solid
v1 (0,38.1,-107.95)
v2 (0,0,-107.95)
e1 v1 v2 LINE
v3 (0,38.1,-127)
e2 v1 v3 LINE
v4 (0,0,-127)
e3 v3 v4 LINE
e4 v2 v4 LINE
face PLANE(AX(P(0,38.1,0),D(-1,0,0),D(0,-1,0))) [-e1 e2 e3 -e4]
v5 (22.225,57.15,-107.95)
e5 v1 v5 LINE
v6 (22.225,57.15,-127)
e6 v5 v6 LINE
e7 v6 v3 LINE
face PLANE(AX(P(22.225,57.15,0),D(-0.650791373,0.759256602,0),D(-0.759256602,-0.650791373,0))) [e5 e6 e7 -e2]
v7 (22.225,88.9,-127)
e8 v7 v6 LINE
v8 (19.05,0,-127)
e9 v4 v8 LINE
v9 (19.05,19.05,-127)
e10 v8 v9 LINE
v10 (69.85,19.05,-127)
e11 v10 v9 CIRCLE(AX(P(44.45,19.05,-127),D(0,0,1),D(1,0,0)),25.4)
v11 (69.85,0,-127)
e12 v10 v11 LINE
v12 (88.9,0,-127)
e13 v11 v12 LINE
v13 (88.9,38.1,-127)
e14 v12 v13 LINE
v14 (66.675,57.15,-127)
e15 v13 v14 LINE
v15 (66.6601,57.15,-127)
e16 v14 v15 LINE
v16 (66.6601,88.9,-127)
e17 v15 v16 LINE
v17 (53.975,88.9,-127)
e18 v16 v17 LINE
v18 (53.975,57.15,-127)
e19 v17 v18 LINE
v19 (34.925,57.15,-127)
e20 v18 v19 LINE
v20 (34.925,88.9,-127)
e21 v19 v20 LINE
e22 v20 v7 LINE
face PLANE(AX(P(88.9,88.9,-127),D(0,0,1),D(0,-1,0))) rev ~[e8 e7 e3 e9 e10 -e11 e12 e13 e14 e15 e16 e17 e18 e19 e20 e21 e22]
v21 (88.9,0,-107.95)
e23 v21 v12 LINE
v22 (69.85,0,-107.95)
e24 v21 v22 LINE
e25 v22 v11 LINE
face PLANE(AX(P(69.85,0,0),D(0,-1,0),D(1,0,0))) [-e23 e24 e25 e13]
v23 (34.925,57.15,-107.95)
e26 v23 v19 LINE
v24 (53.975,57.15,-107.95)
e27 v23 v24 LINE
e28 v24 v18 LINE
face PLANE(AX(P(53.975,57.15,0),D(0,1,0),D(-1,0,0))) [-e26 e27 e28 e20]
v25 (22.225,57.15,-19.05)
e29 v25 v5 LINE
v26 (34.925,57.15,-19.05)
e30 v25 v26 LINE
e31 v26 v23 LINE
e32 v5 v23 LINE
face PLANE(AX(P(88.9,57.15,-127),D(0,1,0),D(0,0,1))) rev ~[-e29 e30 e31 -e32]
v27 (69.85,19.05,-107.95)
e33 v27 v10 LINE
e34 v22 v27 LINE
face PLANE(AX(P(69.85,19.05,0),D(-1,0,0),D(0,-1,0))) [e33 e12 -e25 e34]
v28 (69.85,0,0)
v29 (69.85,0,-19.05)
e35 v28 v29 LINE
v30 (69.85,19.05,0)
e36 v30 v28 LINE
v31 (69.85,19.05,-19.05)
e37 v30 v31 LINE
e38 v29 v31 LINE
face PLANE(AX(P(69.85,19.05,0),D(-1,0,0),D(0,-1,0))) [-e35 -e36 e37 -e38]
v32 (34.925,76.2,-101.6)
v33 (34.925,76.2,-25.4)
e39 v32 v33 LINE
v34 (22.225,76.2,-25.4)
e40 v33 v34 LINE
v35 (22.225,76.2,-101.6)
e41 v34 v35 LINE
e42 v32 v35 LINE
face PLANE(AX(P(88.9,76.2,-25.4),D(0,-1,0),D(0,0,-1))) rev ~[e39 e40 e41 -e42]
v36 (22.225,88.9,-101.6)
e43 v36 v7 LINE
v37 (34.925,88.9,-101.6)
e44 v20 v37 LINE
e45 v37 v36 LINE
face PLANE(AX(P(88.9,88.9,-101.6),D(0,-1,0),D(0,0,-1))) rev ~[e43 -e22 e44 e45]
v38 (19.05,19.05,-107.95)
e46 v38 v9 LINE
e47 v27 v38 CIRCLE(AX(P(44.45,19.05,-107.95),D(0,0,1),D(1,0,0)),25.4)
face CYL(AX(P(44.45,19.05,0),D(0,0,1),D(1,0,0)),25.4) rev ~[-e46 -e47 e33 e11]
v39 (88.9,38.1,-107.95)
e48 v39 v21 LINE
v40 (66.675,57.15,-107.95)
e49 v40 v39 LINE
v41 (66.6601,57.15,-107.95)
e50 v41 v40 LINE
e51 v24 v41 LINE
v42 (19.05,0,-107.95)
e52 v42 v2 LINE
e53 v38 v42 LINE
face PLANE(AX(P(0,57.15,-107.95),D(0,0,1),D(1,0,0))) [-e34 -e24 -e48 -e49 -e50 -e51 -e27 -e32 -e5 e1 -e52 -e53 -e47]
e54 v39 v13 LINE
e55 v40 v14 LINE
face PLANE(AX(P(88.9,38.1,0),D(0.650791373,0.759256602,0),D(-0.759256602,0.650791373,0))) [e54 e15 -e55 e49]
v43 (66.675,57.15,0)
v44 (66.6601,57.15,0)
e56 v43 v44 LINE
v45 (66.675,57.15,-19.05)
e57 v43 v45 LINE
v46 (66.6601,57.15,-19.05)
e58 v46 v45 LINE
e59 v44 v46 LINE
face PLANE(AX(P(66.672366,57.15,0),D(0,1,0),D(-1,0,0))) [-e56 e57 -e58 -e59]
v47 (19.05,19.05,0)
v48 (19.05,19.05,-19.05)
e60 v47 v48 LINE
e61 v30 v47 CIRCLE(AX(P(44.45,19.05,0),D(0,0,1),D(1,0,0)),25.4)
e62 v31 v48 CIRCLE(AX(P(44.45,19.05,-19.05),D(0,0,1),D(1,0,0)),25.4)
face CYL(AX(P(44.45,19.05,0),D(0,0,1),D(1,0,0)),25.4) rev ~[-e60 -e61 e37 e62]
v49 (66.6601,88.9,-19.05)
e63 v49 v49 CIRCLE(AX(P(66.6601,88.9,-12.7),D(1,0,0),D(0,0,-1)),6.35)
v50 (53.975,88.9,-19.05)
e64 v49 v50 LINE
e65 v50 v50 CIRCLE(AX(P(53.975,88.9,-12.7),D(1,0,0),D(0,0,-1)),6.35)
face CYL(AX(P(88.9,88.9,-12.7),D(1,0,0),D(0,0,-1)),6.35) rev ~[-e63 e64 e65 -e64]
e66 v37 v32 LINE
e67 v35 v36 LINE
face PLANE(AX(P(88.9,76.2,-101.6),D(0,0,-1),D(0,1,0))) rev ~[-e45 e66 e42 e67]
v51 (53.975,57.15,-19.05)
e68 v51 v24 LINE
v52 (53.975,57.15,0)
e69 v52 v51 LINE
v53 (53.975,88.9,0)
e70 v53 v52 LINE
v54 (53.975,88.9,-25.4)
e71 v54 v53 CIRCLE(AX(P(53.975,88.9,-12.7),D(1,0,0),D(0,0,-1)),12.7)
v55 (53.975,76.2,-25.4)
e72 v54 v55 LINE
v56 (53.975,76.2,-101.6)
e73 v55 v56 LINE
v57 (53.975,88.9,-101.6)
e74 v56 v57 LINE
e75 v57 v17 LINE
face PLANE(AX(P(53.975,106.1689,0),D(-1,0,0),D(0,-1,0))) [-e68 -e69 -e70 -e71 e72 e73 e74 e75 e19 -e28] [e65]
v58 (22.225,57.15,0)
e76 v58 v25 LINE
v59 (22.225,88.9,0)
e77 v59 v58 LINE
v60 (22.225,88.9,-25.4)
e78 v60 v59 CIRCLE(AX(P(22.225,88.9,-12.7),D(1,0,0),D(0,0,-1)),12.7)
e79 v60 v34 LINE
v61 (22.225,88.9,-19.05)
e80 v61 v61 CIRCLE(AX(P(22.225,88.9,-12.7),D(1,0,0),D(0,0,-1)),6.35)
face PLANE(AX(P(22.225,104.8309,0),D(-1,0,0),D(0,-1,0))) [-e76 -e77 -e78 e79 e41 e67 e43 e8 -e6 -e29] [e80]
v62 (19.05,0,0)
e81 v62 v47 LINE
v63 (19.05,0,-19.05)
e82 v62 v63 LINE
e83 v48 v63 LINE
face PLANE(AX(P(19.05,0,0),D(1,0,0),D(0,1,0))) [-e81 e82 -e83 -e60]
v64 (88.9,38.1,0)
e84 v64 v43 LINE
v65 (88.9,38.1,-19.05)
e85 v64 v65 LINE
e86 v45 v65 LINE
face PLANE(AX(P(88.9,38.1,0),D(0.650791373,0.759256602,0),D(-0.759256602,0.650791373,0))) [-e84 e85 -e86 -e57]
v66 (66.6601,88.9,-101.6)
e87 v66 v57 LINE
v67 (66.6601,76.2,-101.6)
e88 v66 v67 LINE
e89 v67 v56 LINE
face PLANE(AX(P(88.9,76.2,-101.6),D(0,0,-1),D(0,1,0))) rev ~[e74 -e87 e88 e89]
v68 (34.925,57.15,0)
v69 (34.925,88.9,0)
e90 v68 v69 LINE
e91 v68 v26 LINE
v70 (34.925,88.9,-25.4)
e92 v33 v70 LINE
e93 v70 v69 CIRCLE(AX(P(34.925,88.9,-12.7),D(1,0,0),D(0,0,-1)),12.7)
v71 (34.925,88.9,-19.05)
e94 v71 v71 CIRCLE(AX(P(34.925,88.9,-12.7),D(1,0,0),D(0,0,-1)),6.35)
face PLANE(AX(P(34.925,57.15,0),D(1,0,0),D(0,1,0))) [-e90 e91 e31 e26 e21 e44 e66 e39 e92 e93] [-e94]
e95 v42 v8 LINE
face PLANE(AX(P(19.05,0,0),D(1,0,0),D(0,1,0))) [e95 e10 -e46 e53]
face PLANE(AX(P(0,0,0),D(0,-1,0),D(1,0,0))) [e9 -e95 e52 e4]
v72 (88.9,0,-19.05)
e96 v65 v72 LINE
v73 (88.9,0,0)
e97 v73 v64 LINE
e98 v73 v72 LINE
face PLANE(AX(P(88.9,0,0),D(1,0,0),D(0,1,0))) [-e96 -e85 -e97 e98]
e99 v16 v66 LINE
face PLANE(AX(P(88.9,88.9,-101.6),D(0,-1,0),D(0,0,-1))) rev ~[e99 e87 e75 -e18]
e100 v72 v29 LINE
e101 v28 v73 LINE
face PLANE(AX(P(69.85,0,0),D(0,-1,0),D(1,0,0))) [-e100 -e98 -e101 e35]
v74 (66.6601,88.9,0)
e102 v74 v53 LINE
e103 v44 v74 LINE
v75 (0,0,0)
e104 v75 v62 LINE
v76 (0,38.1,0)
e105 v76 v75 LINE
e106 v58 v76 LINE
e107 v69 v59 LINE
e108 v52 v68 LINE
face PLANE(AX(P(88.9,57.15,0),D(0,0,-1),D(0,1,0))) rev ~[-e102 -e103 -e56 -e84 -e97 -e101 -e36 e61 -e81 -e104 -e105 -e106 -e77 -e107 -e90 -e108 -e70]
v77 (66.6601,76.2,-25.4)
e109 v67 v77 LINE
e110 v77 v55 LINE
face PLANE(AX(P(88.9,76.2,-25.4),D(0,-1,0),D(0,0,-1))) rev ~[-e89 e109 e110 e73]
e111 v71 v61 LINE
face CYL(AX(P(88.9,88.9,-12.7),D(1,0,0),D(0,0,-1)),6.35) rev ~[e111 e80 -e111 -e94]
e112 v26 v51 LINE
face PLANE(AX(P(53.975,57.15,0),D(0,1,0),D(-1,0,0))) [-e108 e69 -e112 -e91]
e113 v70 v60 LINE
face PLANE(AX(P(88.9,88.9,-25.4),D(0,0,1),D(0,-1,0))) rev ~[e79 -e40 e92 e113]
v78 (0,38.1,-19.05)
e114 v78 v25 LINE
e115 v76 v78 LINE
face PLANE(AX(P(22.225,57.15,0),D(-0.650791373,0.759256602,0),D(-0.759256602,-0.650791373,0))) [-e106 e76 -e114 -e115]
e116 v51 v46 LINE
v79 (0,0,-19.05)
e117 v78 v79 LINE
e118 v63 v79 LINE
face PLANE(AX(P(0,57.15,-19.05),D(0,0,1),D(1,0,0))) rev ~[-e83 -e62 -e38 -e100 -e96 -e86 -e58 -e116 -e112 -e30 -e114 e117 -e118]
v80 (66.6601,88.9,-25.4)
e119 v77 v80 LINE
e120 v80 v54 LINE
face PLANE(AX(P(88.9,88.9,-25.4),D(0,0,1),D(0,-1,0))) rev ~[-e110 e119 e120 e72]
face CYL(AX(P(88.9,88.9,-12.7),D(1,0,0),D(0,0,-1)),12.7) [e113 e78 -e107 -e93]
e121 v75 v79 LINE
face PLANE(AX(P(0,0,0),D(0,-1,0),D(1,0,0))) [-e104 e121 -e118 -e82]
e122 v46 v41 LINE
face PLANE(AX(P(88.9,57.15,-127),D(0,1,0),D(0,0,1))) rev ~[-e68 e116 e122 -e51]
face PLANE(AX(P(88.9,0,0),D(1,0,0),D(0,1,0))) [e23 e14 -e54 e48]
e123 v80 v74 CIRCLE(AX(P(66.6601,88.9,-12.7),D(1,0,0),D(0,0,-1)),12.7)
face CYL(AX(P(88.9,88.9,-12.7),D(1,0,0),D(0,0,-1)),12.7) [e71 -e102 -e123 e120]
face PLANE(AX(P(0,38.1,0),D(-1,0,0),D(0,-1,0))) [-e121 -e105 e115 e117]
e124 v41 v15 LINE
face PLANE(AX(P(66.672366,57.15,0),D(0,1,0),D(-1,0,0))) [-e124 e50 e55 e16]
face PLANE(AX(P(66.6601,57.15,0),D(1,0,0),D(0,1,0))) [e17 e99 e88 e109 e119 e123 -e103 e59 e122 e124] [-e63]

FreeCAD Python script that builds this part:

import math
import FreeCAD as App
import Part
import Sketcher

V = App.Vector
Q = App.Units.Quantity

doc = App.newDocument("Part")
body = doc.addObject("PartDesign::Body", "Body")
body.AllowCompound = True

# Sketch on XY plane
sketch1 = body.newObject("Sketcher::SketchObject", "Sketch")
sketch1.AttachmentSupport = (doc.getObject("XY_Plane"), [""])
sketch1.MapMode = "FlatFace"
sketch1.addGeometry([
    Part.LineSegment(V(0, 38.1, 0), V(0, 0, 0)),  # 0
    Part.LineSegment(V(0, 0, 0), V(19.05, 0, 0)),  # 1
    Part.LineSegment(V(19.05, 0, 0), V(19.05, 19.05, 0)),  # 2
    Part.ArcOfCircle(Part.Circle(V(44.45, 19.05, 0), V(0, 0, 1), 25.4), math.radians(0), math.radians(180)),  # 3
    Part.LineSegment(V(69.85, 19.05, 0), V(69.85, 0, 0)),  # 4
    Part.LineSegment(V(69.85, 0, 0), V(88.9, 0, 0)),  # 5
    Part.LineSegment(V(88.9, 0, 0), V(88.9, 38.1, 0)),  # 6
    Part.LineSegment(V(88.9, 38.1, 0), V(66.675, 57.15, 0)),  # 7
    Part.LineSegment(V(66.675, 57.15, 0), V(22.225, 57.15, 0)),  # 8
    Part.LineSegment(V(22.225, 57.15, 0), V(0, 38.1, 0)),  # 9
], False)
sketch1.addConstraint([
    Sketcher.Constraint("Coincident", 0, 2, 1, 1),
    Sketcher.Constraint("Coincident", 1, 2, 2, 1),
    Sketcher.Constraint("Tangent", 2, 2, 3, 2),
    Sketcher.Constraint("Tangent", 3, 1, 4, 1),
    Sketcher.Constraint("Coincident", 4, 2, 5, 1),
    Sketcher.Constraint("Coincident", 5, 2, 6, 1),
    Sketcher.Constraint("Coincident", 6, 2, 7, 1),
    Sketcher.Constraint("Coincident", 7, 2, 8, 1),
    Sketcher.Constraint("Coincident", 8, 2, 9, 1),
    Sketcher.Constraint("Coincident", 9, 2, 0, 1),
    Sketcher.Constraint("Vertical", 0),
    Sketcher.Constraint("Horizontal", 1),
    Sketcher.Constraint("Vertical", 2),
    Sketcher.Constraint("Vertical", 4),
    Sketcher.Constraint("Horizontal", 5),
    Sketcher.Constraint("Vertical", 6),
    Sketcher.Constraint("Horizontal", 8),
    Sketcher.Constraint("Coincident", 0, 2, -1, 1),
    Sketcher.Constraint("PointOnObject", 4, 2, -1),
    Sketcher.Constraint("Horizontal", 6, 2, 9, 2),
    Sketcher.Constraint("Equal", 1, 5),
    Sketcher.Constraint("Equal", 5, 2),
    Sketcher.Constraint("Equal", 7, 9),
    Sketcher.Constraint("DistanceY", 0, 2, 0, 1, Q("1.5 in")),
    Sketcher.Constraint("Radius", 3, Q("1 in")),
    Sketcher.Constraint("DistanceX", 1, 1, 1, 2, Q("0.75 in")),
    Sketcher.Constraint("DistanceX", 8, 2, 8, 1, Q("1.75 in")),
    Sketcher.Constraint("DistanceY", 3, 1, 7, 2, Q("1.5 in")),
])
pad1 = body.newObject("PartDesign::Pad", "Pad")
pad1.Profile = sketch1
pad1.Length = Q("5 in")
pad1.Reversed = True

# Sketch on XZ plane
sketch2 = body.newObject("Sketcher::SketchObject", "Sketch001")
sketch2.AttachmentSupport = (doc.getObject("XZ_Plane"), [""])
sketch2.MapMode = "FlatFace"
sketch2.AttachmentOffset = App.Placement(V(0, 0, -2.25 * 25.4), App.Rotation())
sketch2.addGeometry([
    Part.LineSegment(V(0, -107.95, 0), V(0, -19.05, 0)),
    Part.LineSegment(V(0, -19.05, 0), V(90.9398, -19.05, 0)),
    Part.LineSegment(V(90.9398, -19.05, 0), V(90.9398, -107.95, 0)),
    Part.LineSegment(V(90.9398, -107.95, 0), V(0, -107.95, 0)),
], False)
sketch2.addConstraint([
    Sketcher.Constraint("Coincident", 0, 2, 1, 1),
    Sketcher.Constraint("Coincident", 1, 2, 2, 1),
    Sketcher.Constraint("Coincident", 2, 2, 3, 1),
    Sketcher.Constraint("Coincident", 3, 2, 0, 1),
    Sketcher.Constraint("Vertical", 0),
    Sketcher.Constraint("Horizontal", 1),
    Sketcher.Constraint("Vertical", 2),
    Sketcher.Constraint("Horizontal", 3),
    Sketcher.Constraint("PointOnObject", 0, 2, -2),
    Sketcher.Constraint("DistanceY", 0, 2, -1, 1, Q("0.75 in")),
    Sketcher.Constraint("DistanceY", 0, 1, 0, 2, Q("3.5 in")),
    Sketcher.Constraint("DistanceX", 1, 1, 1, 2, Q("3.5803 in")),
])
pocket1 = body.newObject("PartDesign::Pocket", "Pocket")
pocket1.Profile = sketch2
pocket1.Type = "ThroughAll"
pocket1.Reversed = True

# Sketch on YZ plane
sketch3 = body.newObject("Sketcher::SketchObject", "Sketch002")
sketch3.AttachmentSupport = (doc.getObject("YZ_Plane"), [""])
sketch3.MapMode = "FlatFace"
sketch3.AttachmentOffset = App.Placement(V(0, 0, 3.5 * 25.4), App.Rotation())
sketch3.addGeometry([
    Part.LineSegment(V(88.9, 0, 0), V(57.15, 0, 0)),  # 0
    Part.LineSegment(V(57.15, 0, 0), V(57.15, -127, 0)),  # 1
    Part.LineSegment(V(57.15, -127, 0), V(88.9, -127, 0)),  # 2
    Part.LineSegment(V(88.9, -127, 0), V(88.9, -101.6, 0)),  # 3
    Part.LineSegment(V(88.9, -101.6, 0), V(76.2, -101.6, 0)),  # 4
    Part.LineSegment(V(76.2, -101.6, 0), V(76.2, -25.4, 0)),  # 5
    Part.LineSegment(V(76.2, -25.4, 0), V(88.9, -25.4, 0)),  # 6
    Part.ArcOfCircle(Part.Circle(V(88.9, -12.7, 0), V(0, 0, 1), 12.7), math.radians(-90), math.radians(90)),  # 7
    Part.Circle(V(88.9, -12.7, 0), V(0, 0, 1), 6.35),  # 8
], False)
sketch3.addConstraint([
    Sketcher.Constraint("Coincident", 0, 2, 1, 1),
    Sketcher.Constraint("Coincident", 1, 2, 2, 1),
    Sketcher.Constraint("Coincident", 2, 2, 3, 1),
    Sketcher.Constraint("Coincident", 3, 2, 4, 1),
    Sketcher.Constraint("Coincident", 4, 2, 5, 1),
    Sketcher.Constraint("Coincident", 5, 2, 6, 1),
    Sketcher.Constraint("Tangent", 6, 2, 7, 1),
    Sketcher.Constraint("Tangent", 7, 2, 0, 1),
    Sketcher.Constraint("Horizontal", 0),
    Sketcher.Constraint("Vertical", 1),
    Sketcher.Constraint("Horizontal", 2),
    Sketcher.Constraint("Vertical", 3),
    Sketcher.Constraint("Horizontal", 4),
    Sketcher.Constraint("Vertical", 5),
    Sketcher.Constraint("Horizontal", 6),
    Sketcher.Constraint("Coincident", 8, 3, 7, 3),
    Sketcher.Constraint("PointOnObject", 0, 2, -1),
    Sketcher.Constraint("Vertical", 8, 3, 2, 2),
    Sketcher.Constraint("Diameter", 8, Q("0.5 in")),
    Sketcher.Constraint("Radius", 7, Q("0.5 in")),
    Sketcher.Constraint("DistanceY", 3, 1, 3, 2, Q("1 in")),
    Sketcher.Constraint("DistanceX", 4, 2, 4, 1, Q("0.5 in")),
    Sketcher.Constraint("DistanceX", 0, 2, 0, 1, Q("1.25 in")),
    Sketcher.Constraint("DistanceY", 1, 2, 1, 1, Q("5 in")),
    Sketcher.Constraint("DistanceX", -1, 1, 4, 2, Q("3 in")),
])
pad2 = body.newObject("PartDesign::Pad", "Pad001")
pad2.Profile = sketch3
pad2.Length = Q("3.5 in")
pad2.Reversed = True

# Sketch on XY plane
sketch4 = body.newObject("Sketcher::SketchObject", "Sketch003")
sketch4.AttachmentSupport = (doc.getObject("XY_Plane"), [""])
sketch4.MapMode = "FlatFace"
sketch4.addGeometry([
    Part.LineSegment(V(22.225, 57.15, 0), V(22.225, 104.8309, 0)),  # 0
    Part.LineSegment(V(22.225, 104.8309, 0), V(0, 104.8309, 0)),  # 1
    Part.LineSegment(V(0, 104.8309, 0), V(0, 57.15, 0)),  # 2
    Part.LineSegment(V(0, 57.15, 0), V(22.225, 57.15, 0)),  # 3
    Part.LineSegment(V(66.6601, 57.15, 0), V(88.9, 57.15, 0)),  # 4
    Part.LineSegment(V(88.9, 57.15, 0), V(88.9, 105.2632, 0)),  # 5
    Part.LineSegment(V(88.9, 105.2632, 0), V(66.6601, 105.2632, 0)),  # 6
    Part.LineSegment(V(66.6601, 105.2632, 0), V(66.6601, 57.15, 0)),  # 7
], False)
sketch4.addConstraint([
    Sketcher.Constraint("Coincident", 0, 2, 1, 1),
    Sketcher.Constraint("Coincident", 1, 2, 2, 1),
    Sketcher.Constraint("Coincident", 2, 2, 3, 1),
    Sketcher.Constraint("Coincident", 3, 2, 0, 1),
    Sketcher.Constraint("Coincident", 4, 2, 5, 1),
    Sketcher.Constraint("Coincident", 5, 2, 6, 1),
    Sketcher.Constraint("Coincident", 6, 2, 7, 1),
    Sketcher.Constraint("Coincident", 7, 2, 4, 1),
    Sketcher.Constraint("Vertical", 0),
    Sketcher.Constraint("Horizontal", 1),
    Sketcher.Constraint("Vertical", 2),
    Sketcher.Constraint("Horizontal", 3),
    Sketcher.Constraint("Horizontal", 4),
    Sketcher.Constraint("Vertical", 5),
    Sketcher.Constraint("Horizontal", 6),
    Sketcher.Constraint("Vertical", 7),
    Sketcher.Constraint("PointOnObject", 1, 2, -2),
    Sketcher.Constraint("Horizontal", 3, 2, 4, 2),
    Sketcher.Constraint("DistanceX", 1, 2, 1, 1, Q("0.875 in")),
    Sketcher.Constraint("DistanceX", -1, 1, 4, 2, Q("3.5 in")),
    Sketcher.Constraint("DistanceY", -1, 1, 2, 2, Q("2.25 in")),
    Sketcher.Constraint("DistanceY", 0, 1, 0, 2, Q("1.8772 in")),
    Sketcher.Constraint("DistanceX", 4, 1, 4, 2, Q("0.8755906 in")),
    Sketcher.Constraint("DistanceY", 5, 1, 5, 2, Q("48.1132 mm")),
])
pocket2 = body.newObject("PartDesign::Pocket", "Pocket001")
pocket2.Profile = sketch4
pocket2.Type = "ThroughAll"

# Sketch on XY plane
sketch5 = body.newObject("Sketcher::SketchObject", "Sketch004")
sketch5.AttachmentSupport = (doc.getObject("XY_Plane"), [""])
sketch5.MapMode = "FlatFace"
sketch5.addGeometry([
    Part.LineSegment(V(34.925, 57.15, 0), V(53.975, 57.15, 0)),
    Part.LineSegment(V(53.975, 57.15, 0), V(53.975, 106.1689, 0)),
    Part.LineSegment(V(53.975, 106.1689, 0), V(34.925, 106.1689, 0)),
    Part.LineSegment(V(34.925, 106.1689, 0), V(34.925, 57.15, 0)),
], False)
sketch5.addConstraint([
    Sketcher.Constraint("Coincident", 0, 2, 1, 1),
    Sketcher.Constraint("Coincident", 1, 2, 2, 1),
    Sketcher.Constraint("Coincident", 2, 2, 3, 1),
    Sketcher.Constraint("Coincident", 3, 2, 0, 1),
    Sketcher.Constraint("Horizontal", 0),
    Sketcher.Constraint("Vertical", 1),
    Sketcher.Constraint("Horizontal", 2),
    Sketcher.Constraint("Vertical", 3),
    Sketcher.Constraint("DistanceX", 0, 1, 0, 2, Q("0.75 in")),
    Sketcher.Constraint("DistanceY", -1, 1, 0, 2, Q("2.25 in")),
    Sketcher.Constraint("DistanceX", -1, 1, 0, 2, Q("2.125 in")),
    Sketcher.Constraint("DistanceY", 1, 1, 1, 2, Q("49.019 mm")),
])
pocket3 = body.newObject("PartDesign::Pocket", "Pocket002")
pocket3.Profile = sketch5
pocket3.Type = "ThroughAll"

doc.recompute()
